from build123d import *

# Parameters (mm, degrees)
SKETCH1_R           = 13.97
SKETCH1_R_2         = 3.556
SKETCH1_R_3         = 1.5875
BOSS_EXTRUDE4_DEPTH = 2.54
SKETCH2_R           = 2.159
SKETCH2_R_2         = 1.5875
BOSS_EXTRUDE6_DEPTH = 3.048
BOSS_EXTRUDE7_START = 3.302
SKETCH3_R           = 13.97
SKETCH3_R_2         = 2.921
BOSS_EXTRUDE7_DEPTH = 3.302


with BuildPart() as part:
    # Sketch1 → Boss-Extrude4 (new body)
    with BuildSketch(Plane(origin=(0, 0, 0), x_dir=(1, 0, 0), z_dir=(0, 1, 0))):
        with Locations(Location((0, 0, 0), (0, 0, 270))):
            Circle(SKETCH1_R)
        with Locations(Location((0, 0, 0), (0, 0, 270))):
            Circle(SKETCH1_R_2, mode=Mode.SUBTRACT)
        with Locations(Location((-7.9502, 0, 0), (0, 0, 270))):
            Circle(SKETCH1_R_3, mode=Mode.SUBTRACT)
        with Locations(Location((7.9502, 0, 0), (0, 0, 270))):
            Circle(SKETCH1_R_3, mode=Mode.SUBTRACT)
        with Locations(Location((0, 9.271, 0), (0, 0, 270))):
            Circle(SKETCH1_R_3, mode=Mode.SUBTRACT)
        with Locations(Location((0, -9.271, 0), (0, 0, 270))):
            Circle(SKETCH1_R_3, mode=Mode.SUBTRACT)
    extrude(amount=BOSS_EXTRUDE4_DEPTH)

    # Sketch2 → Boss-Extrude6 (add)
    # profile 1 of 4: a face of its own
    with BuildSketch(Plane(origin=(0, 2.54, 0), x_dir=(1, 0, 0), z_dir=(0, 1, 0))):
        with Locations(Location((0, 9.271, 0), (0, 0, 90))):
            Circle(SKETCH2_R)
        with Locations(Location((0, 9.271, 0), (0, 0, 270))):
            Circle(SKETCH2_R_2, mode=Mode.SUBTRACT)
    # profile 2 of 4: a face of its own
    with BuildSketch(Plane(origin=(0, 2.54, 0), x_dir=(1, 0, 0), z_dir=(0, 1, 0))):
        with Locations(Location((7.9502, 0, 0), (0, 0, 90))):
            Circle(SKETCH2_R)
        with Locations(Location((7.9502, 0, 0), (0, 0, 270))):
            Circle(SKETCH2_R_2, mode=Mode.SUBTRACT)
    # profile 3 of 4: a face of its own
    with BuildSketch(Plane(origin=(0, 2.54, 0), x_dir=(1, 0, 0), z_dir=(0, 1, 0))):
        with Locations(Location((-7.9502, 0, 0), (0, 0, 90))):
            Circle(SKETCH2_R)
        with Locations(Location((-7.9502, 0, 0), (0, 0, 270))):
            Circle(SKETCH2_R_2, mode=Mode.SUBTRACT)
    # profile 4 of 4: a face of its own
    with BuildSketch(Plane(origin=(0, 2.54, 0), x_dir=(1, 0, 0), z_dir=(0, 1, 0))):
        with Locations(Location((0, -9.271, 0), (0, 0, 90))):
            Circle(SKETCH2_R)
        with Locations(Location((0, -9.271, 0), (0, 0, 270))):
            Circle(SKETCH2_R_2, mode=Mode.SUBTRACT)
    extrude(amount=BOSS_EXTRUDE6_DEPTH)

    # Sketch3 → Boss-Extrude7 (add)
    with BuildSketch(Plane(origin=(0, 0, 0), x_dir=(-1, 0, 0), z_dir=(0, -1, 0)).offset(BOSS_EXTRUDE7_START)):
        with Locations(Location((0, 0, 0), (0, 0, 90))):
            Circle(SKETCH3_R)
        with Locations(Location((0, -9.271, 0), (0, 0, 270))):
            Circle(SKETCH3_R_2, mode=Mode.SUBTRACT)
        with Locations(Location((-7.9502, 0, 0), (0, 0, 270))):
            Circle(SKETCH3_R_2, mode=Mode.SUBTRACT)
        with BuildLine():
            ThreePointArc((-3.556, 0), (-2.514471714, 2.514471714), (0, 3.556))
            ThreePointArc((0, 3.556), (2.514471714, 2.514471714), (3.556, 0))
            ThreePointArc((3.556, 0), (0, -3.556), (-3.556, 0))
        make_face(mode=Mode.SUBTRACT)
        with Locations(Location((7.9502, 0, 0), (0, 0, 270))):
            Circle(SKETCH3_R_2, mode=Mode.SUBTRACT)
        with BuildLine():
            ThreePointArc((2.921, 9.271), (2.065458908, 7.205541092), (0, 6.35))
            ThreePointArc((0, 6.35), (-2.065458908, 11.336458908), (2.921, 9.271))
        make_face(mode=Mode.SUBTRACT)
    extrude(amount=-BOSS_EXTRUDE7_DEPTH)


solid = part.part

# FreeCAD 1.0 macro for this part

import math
import FreeCAD as App
import Part
import Sketcher

V = App.Vector
Q = App.Units.Quantity

doc = App.newDocument("Part")
body = doc.addObject("PartDesign::Body", "Body")

# Sketch on XZ plane
sketch1 = body.newObject("Sketcher::SketchObject", "Sketch")
sketch1.AttachmentSupport = (doc.getObject("XZ_Plane"), [""])
sketch1.MapMode = "FlatFace"
sketch1.addGeometry(Part.Circle(V(0, 0, 0), V(0, 0, 1), 14), False)
sketch1.addGeometry(Part.Circle(V(0, -9.3, 0), V(0, 0, 1), 1.6), False)
sketch1.addGeometry(Part.Circle(V(-8, 0, 0), V(0, 0, 1), 1.6), False)
sketch1.addGeometry(Part.Circle(V(8, 0, 0), V(0, 0, 1), 1.6), False)
sketch1.addGeometry(Part.Circle(V(0, 0, 0), V(0, 0, 1), 3.6), False)
sketch1.addGeometry(Part.Circle(V(0, 9.3, 0), V(0, 0, 1), 1.6), False)
sketch1.addConstraint(Sketcher.Constraint("Coincident", 0, 3, -1, 1))
sketch1.addConstraint(Sketcher.Constraint("Coincident", 4, 3, -1, 1))
sketch1.addConstraint(Sketcher.Constraint("Equal", 1, 2))
sketch1.addConstraint(Sketcher.Constraint("Equal", 2, 3))
sketch1.addConstraint(Sketcher.Constraint("Equal", 3, 5))
sketch1.addConstraint(Sketcher.Constraint("Symmetric", 2, 3, 3, 3, -1, 1))
sketch1.addConstraint(Sketcher.Constraint("Symmetric", 1, 3, 5, 3, -1, 1))
sketch1.addConstraint(Sketcher.Constraint("PointOnObject", 1, 3, -2))
sketch1.addConstraint(Sketcher.Constraint("PointOnObject", 2, 3, -1))
sketch1.addConstraint(Sketcher.Constraint("Diameter", 0, Q("1.1 in")))
sketch1.addConstraint(Sketcher.Constraint("Diameter", 4, Q("0.28 in")))
sketch1.addConstraint(Sketcher.Constraint("Diameter", 1, Q("0.125 in")))
sketch1.addConstraint(Sketcher.Constraint("DistanceY", 1, 3, 5, 3, Q("0.73 in")))
sketch1.addConstraint(Sketcher.Constraint("DistanceX", 2, 3, -1, 1, Q("0.313 in")))
pad1 = body.newObject("PartDesign::Pad", "Pad")
pad1.Profile = sketch1
pad1.Length = Q("0.1 in")
pad1.Reversed = True

# Sketch on XZ plane
sketch2 = body.newObject("Sketcher::SketchObject", "Sketch001")
sketch2.AttachmentSupport = (doc.getObject("XZ_Plane"), [""])
sketch2.MapMode = "FlatFace"
sketch2.AttachmentOffset = App.Placement(V(0, 0, -0.1 * 25.4), App.Rotation())
sketch2.addGeometry(Part.Circle(V(0, -9.3, 0), V(0, 0, 1), 2.2), False)
sketch2.addGeometry(Part.Circle(V(0, -9.3, 0), V(0, 0, 1), 1.6), False)
sketch2.addGeometry(Part.Circle(V(8, 0, 0), V(0, 0, 1), 2.2), False)
sketch2.addGeometry(Part.Circle(V(8, 0, 0), V(0, 0, 1), 1.6), False)
sketch2.addGeometry(Part.Circle(V(-8, 0, 0), V(0, 0, 1), 2.2), False)
sketch2.addGeometry(Part.Circle(V(-8, 0, 0), V(0, 0, 1), 1.6), False)
sketch2.addGeometry(Part.Circle(V(0, 9.3, 0), V(0, 0, 1), 2.2), False)
sketch2.addGeometry(Part.Circle(V(0, 9.3, 0), V(0, 0, 1), 1.6), False)
sketch2.addConstraint(Sketcher.Constraint("Coincident", 1, 3, 0, 3))
sketch2.addConstraint(Sketcher.Constraint("Coincident", 3, 3, 2, 3))
sketch2.addConstraint(Sketcher.Constraint("Coincident", 5, 3, 4, 3))
sketch2.addConstraint(Sketcher.Constraint("Coincident", 7, 3, 6, 3))
sketch2.addConstraint(Sketcher.Constraint("Equal", 0, 2))
sketch2.addConstraint(Sketcher.Constraint("Equal", 1, 3))
sketch2.addConstraint(Sketcher.Constraint("Equal", 2, 4))
sketch2.addConstraint(Sketcher.Constraint("Equal", 3, 5))
sketch2.addConstraint(Sketcher.Constraint("Equal", 4, 6))
sketch2.addConstraint(Sketcher.Constraint("Equal", 5, 7))
sketch2.addConstraint(Sketcher.Constraint("Symmetric", 2, 3, 4, 3, -1, 1))
sketch2.addConstraint(Sketcher.Constraint("Symmetric", 0, 3, 6, 3, -1, 1))
sketch2.addConstraint(Sketcher.Constraint("PointOnObject", 0, 3, -2))
sketch2.addConstraint(Sketcher.Constraint("PointOnObject", 2, 3, -1))
sketch2.addConstraint(Sketcher.Constraint("Diameter", 0, Q("0.17 in")))
sketch2.addConstraint(Sketcher.Constraint("Diameter", 1, Q("0.125 in")))
sketch2.addConstraint(Sketcher.Constraint("DistanceY", 0, 3, 6, 3, Q("0.73 in")))
sketch2.addConstraint(Sketcher.Constraint("DistanceX", -1, 1, 2, 3, Q("0.313 in")))
pad2 = body.newObject("PartDesign::Pad", "Pad001")
pad2.Profile = sketch2
pad2.Length = Q("0.12 in")
pad2.Reversed = True

# Sketch on XZ plane
sketch3 = body.newObject("Sketcher::SketchObject", "Sketch002")
sketch3.AttachmentSupport = (doc.getObject("XZ_Plane"), [""])
sketch3.MapMode = "FlatFace"
sketch3.AttachmentOffset = App.Placement(V(0, 0, 0.13 * 25.4), App.Rotation())
sketch3.addGeometry(Part.Circle(V(0, 0, 0), V(0, 0, 1), 14), False)
sketch3.addGeometry(Part.Circle(V(-8, 0, 0), V(0, 0, 1), 2.9), False)
sketch3.addGeometry(Part.Circle(V(0, 9.3, 0), V(0, 0, 1), 2.9), False)
sketch3.addGeometry(Part.ArcOfCircle(Part.Circle(V(0, 0, 0), V(0, 0, 1), 3.6), math.radians(0), math.radians(180)), False)
sketch3.addGeometry(Part.ArcOfCircle(Part.Circle(V(0, 0, 0), V(0, 0, 1), 3.6), math.radians(-90), math.radians(0)), False)
sketch3.addGeometry(Part.ArcOfCircle(Part.Circle(V(0, 0, 0), V(0, 0, 1), 3.6), math.radians(180), math.radians(270)), False)
sketch3.addGeometry(Part.Circle(V(8, 0, 0), V(0, 0, 1), 2.9), False)
sketch3.addGeometry(Part.ArcOfCircle(Part.Circle(V(0, -9.3, 0), V(0, 0, 1), 2.9), math.radians(180), math.radians(450)), False)
sketch3.addGeometry(Part.ArcOfCircle(Part.Circle(V(0, -9.3, 0), V(0, 0, 1), 2.9), math.radians(90), math.radians(180)), False)
sketch3.addConstraint(Sketcher.Constraint("Tangent", 3, 1, 4, 2))
sketch3.addConstraint(Sketcher.Constraint("Tangent", 4, 1, 5, 2))
sketch3.addConstraint(Sketcher.Constraint("Tangent", 5, 1, 3, 2))
sketch3.addConstraint(Sketcher.Constraint("Tangent", 7, 1, 8, 2))
sketch3.addConstraint(Sketcher.Constraint("Coincident", 8, 1, 7, 2))
sketch3.addConstraint(Sketcher.Constraint("Coincident", 0, 3, -1, 1))
sketch3.addConstraint(Sketcher.Constraint("Coincident", 3, 3, -1, 1))
sketch3.addConstraint(Sketcher.Constraint("Equal", 1, 2))
sketch3.addConstraint(Sketcher.Constraint("Equal", 2, 6))
sketch3.addConstraint(Sketcher.Constraint("Equal", 6, 7))
sketch3.addConstraint(Sketcher.Constraint("Symmetric", 1, 3, 6, 3, -1, 1))
sketch3.addConstraint(Sketcher.Constraint("Symmetric", 2, 3, 7, 3, -1, 1))
sketch3.addConstraint(Sketcher.Constraint("PointOnObject", 1, 3, -1))
sketch3.addConstraint(Sketcher.Constraint("PointOnObject", 2, 3, -2))
sketch3.addConstraint(Sketcher.Constraint("PointOnObject", 3, 1, -1))
sketch3.addConstraint(Sketcher.Constraint("PointOnObject", 4, 1, -2))
sketch3.addConstraint(Sketcher.Constraint("PointOnObject", 5, 1, -1))
sketch3.addConstraint(Sketcher.Constraint("PointOnObject", 8, 1, -2))
sketch3.addConstraint(Sketcher.Constraint("Horizontal", 8, 3, 7, 1))
sketch3.addConstraint(Sketcher.Constraint("Diameter", 0, Q("1.1 in")))
sketch3.addConstraint(Sketcher.Constraint("Diameter", 1, Q("0.23 in")))
sketch3.addConstraint(Sketcher.Constraint("Radius", 3, Q("0.14 in")))
sketch3.addConstraint(Sketcher.Constraint("DistanceY", 8, 1, -1, 1, Q("0.25 in")))
sketch3.addConstraint(Sketcher.Constraint("DistanceX", 1, 3, -1, 1, Q("0.313 in")))
pad3 = body.newObject("PartDesign::Pad", "Pad002")
pad3.Profile = sketch3
pad3.Length = Q("0.13 in")
pad3.Reversed = True

doc.recompute()
